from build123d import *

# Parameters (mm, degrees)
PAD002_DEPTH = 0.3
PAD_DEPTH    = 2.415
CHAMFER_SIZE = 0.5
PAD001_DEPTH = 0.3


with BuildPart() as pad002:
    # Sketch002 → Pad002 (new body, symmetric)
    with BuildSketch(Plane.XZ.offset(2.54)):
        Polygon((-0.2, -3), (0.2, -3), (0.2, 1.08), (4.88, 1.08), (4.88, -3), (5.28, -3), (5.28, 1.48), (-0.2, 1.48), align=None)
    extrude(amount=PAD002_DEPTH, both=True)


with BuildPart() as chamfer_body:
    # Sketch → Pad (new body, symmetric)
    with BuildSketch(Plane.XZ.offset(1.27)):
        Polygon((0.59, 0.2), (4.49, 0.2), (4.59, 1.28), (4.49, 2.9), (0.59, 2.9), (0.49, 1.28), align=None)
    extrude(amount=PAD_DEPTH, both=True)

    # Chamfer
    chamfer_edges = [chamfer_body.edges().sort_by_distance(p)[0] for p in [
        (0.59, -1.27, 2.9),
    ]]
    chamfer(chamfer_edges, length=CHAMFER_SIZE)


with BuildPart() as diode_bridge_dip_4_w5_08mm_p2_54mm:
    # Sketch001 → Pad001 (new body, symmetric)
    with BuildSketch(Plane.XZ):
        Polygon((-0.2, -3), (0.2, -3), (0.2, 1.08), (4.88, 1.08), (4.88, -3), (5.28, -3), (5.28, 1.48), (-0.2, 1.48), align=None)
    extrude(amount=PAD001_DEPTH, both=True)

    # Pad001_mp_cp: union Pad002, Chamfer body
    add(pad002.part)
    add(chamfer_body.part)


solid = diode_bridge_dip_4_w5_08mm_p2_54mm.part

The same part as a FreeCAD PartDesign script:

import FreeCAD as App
import Part
import Sketcher
from FreeCAD import Vector
Q = App.Units.Quantity


def edges_at(feature, points):
    """Names of the edges that pass closest to the given points."""
    edges = feature.Shape.Edges
    near = lambda p: min(range(len(edges)), key=lambda i: edges[i].distToShape(Part.Vertex(*p))[0])
    return sorted({f"Edge{near(p) + 1}" for p in points})

doc = App.newDocument("Part")
params = doc.addObject("Spreadsheet::Sheet", "Params")
for row, (alias, value) in enumerate([
    ("sketch1_width", "0.4 mm"),
    ("sketch1_width2", "4.68 mm"),
    ("sketch1_height", "4.08 mm"),
    ("sketch1_height2", "4.48 mm"),
    ("pad1_length", "0.6 mm"),
    ("sketch2_width", "3.9 mm"),
    ("pad2_length", "4.83 mm"),
    ("chamfer_size", "0.5 mm"),
    ("sketch3_width", "0.4 mm"),
    ("sketch3_width2", "4.68 mm"),
    ("sketch3_height", "4.08 mm"),
    ("sketch3_height2", "4.48 mm"),
    ("pad3_length", "0.6 mm"),
], start=1):
    params.set(f"A{row}", alias)
    params.set(f"B{row}", "=" + value)
    params.setAlias(f"B{row}", alias)

body = doc.addObject("PartDesign::Body", "Body")

# Sketch on XZ plane
sketch1 = body.newObject("Sketcher::SketchObject", "Sketch")
sketch1.AttachmentSupport = (doc.getObject("XZ_Plane"), [""])
sketch1.MapMode = "FlatFace"
sketch1.AttachmentOffset = App.Placement(Vector(0, 0, 2.54), App.Rotation())
sketch1.addGeometry([
    Part.LineSegment(Vector(-0.2, -3, 0), Vector(0.2, -3, 0)),  # 0
    Part.LineSegment(Vector(0.2, -3, 0), Vector(0.2, 1.08, 0)),  # 1
    Part.LineSegment(Vector(0.2, 1.08, 0), Vector(4.88, 1.08, 0)),  # 2
    Part.LineSegment(Vector(4.88, 1.08, 0), Vector(4.88, -3, 0)),  # 3
    Part.LineSegment(Vector(4.88, -3, 0), Vector(5.28, -3, 0)),  # 4
    Part.LineSegment(Vector(5.28, -3, 0), Vector(5.28, 1.48, 0)),  # 5
    Part.LineSegment(Vector(5.28, 1.48, 0), Vector(-0.2, 1.48, 0)),  # 6
    Part.LineSegment(Vector(-0.2, 1.48, 0), Vector(-0.2, -3, 0)),  # 7
], False)
sketch1.addConstraint([
    Sketcher.Constraint("Coincident", 0, 2, 1, 1),
    Sketcher.Constraint("Coincident", 1, 2, 2, 1),
    Sketcher.Constraint("Coincident", 2, 2, 3, 1),
    Sketcher.Constraint("Coincident", 3, 2, 4, 1),
    Sketcher.Constraint("Coincident", 4, 2, 5, 1),
    Sketcher.Constraint("Coincident", 5, 2, 6, 1),
    Sketcher.Constraint("Coincident", 6, 2, 7, 1),
    Sketcher.Constraint("Coincident", 7, 2, 0, 1),
    Sketcher.Constraint("Horizontal", 0),
    Sketcher.Constraint("Vertical", 1),
    Sketcher.Constraint("Horizontal", 2),
    Sketcher.Constraint("Vertical", 3),
    Sketcher.Constraint("Horizontal", 4),
    Sketcher.Constraint("Vertical", 5),
    Sketcher.Constraint("Horizontal", 6),
    Sketcher.Constraint("Vertical", 7),
    Sketcher.Constraint("Horizontal", 0, 2, 3, 2),
    Sketcher.Constraint("Equal", 0, 4),
    Sketcher.Constraint("DistanceX", 0, 1, 0, 2, Q("0.4 mm")),
    Sketcher.Constraint("DistanceY", 0, 2, -1, 1, Q("3 mm")),
    Sketcher.Constraint("DistanceX", 2, 1, 2, 2, Q("4.68 mm")),
    Sketcher.Constraint("DistanceY", 1, 1, 1, 2, Q("4.08 mm")),
    Sketcher.Constraint("DistanceY", 5, 1, 5, 2, Q("4.48 mm")),
    Sketcher.Constraint("DistanceX", -1, 1, 0, 2, Q("0.2 mm")),
])
sketch1.setExpression("Constraints[18]", "Params.sketch1_width")
sketch1.setExpression("Constraints[20]", "Params.sketch1_width2")
sketch1.setExpression("Constraints[21]", "Params.sketch1_height")
sketch1.setExpression("Constraints[22]", "Params.sketch1_height2")
pad1 = body.newObject("PartDesign::Pad", "Pad")
pad1.Profile = sketch1
pad1.setExpression("Length", "Params.pad1_length")
pad1.Midplane = True
body2 = doc.addObject("PartDesign::Body", "Body001")

# Sketch on XZ plane
sketch2 = body2.newObject("Sketcher::SketchObject", "Sketch001")
sketch2.AttachmentSupport = (doc.getObject("XZ_Plane001"), [""])
sketch2.MapMode = "FlatFace"
sketch2.AttachmentOffset = App.Placement(Vector(0, 0, 1.27), App.Rotation())
sketch2.addGeometry([
    Part.LineSegment(Vector(0.6, 0.2, 0), Vector(4.5, 0.2, 0)),  # 0
    Part.LineSegment(Vector(4.5, 0.2, 0), Vector(4.6, 1.3, 0)),  # 1
    Part.LineSegment(Vector(4.6, 1.3, 0), Vector(4.5, 2.9, 0)),  # 2
    Part.LineSegment(Vector(4.5, 2.9, 0), Vector(0.6, 2.9, 0)),  # 3
    Part.LineSegment(Vector(0.6, 2.9, 0), Vector(0.5, 1.3, 0)),  # 4
    Part.LineSegment(Vector(0.5, 1.3, 0), Vector(0.6, 0.2, 0)),  # 5
], False)
sketch2.addConstraint([
    Sketcher.Constraint("Coincident", 0, 2, 1, 1),
    Sketcher.Constraint("Coincident", 1, 2, 2, 1),
    Sketcher.Constraint("Coincident", 2, 2, 3, 1),
    Sketcher.Constraint("Coincident", 3, 2, 4, 1),
    Sketcher.Constraint("Coincident", 4, 2, 5, 1),
    Sketcher.Constraint("Coincident", 5, 2, 0, 1),
    Sketcher.Constraint("Horizontal", 0),
    Sketcher.Constraint("Horizontal", 3),
    Sketcher.Constraint("Horizontal", 1, 2, 4, 2),
    Sketcher.Constraint("Vertical", 0, 2, 2, 2),
    Sketcher.Constraint("Vertical", 3, 2, 5, 2),
    Sketcher.Constraint("Equal", 2, 4),
    Sketcher.Constraint("DistanceX", 0, 1, 0, 2, Q("3.9 mm")),
    Sketcher.Constraint("DistanceX", 3, 2, 1, 2, Q("4 mm")),
    Sketcher.Constraint("DistanceY", -1, 1, 0, 2, Q("0.2 mm")),
    Sketcher.Constraint("DistanceY", -1, 1, 2, 2, Q("2.9 mm")),
    Sketcher.Constraint("DistanceX", -1, 1, 0, 2, Q("4.49 mm")),
    Sketcher.Constraint("DistanceY", -1, 1, 1, 2, Q("1.28 mm")),
])
sketch2.setExpression("Constraints[12]", "Params.sketch2_width")
pad2 = body2.newObject("PartDesign::Pad", "Pad001")
pad2.Profile = sketch2
pad2.setExpression("Length", "Params.pad2_length")
pad2.Midplane = True
doc.recompute()

chamfer = body2.newObject("PartDesign::Chamfer", "Chamfer")
chamfer.Base = (pad2, edges_at(pad2, [(0.59, -1.27, 2.9)]))
chamfer.setExpression("Size", "Params.chamfer_size")
body3 = doc.addObject("PartDesign::Body", "Body002")
body3.AllowCompound = True

# Sketch on XZ plane
sketch3 = body3.newObject("Sketcher::SketchObject", "Sketch002")
sketch3.AttachmentSupport = (doc.getObject("XZ_Plane002"), [""])
sketch3.MapMode = "FlatFace"
sketch3.addGeometry([
    Part.LineSegment(Vector(-0.2, -3, 0), Vector(0.2, -3, 0)),  # 0
    Part.LineSegment(Vector(0.2, -3, 0), Vector(0.2, 1.08, 0)),  # 1
    Part.LineSegment(Vector(0.2, 1.08, 0), Vector(4.88, 1.08, 0)),  # 2
    Part.LineSegment(Vector(4.88, 1.08, 0), Vector(4.88, -3, 0)),  # 3
    Part.LineSegment(Vector(4.88, -3, 0), Vector(5.28, -3, 0)),  # 4
    Part.LineSegment(Vector(5.28, -3, 0), Vector(5.28, 1.48, 0)),  # 5
    Part.LineSegment(Vector(5.28, 1.48, 0), Vector(-0.2, 1.48, 0)),  # 6
    Part.LineSegment(Vector(-0.2, 1.48, 0), Vector(-0.2, -3, 0)),  # 7
], False)
sketch3.addConstraint([
    Sketcher.Constraint("Coincident", 0, 2, 1, 1),
    Sketcher.Constraint("Coincident", 1, 2, 2, 1),
    Sketcher.Constraint("Coincident", 2, 2, 3, 1),
    Sketcher.Constraint("Coincident", 3, 2, 4, 1),
    Sketcher.Constraint("Coincident", 4, 2, 5, 1),
    Sketcher.Constraint("Coincident", 5, 2, 6, 1),
    Sketcher.Constraint("Coincident", 6, 2, 7, 1),
    Sketcher.Constraint("Coincident", 7, 2, 0, 1),
    Sketcher.Constraint("Horizontal", 0),
    Sketcher.Constraint("Vertical", 1),
    Sketcher.Constraint("Horizontal", 2),
    Sketcher.Constraint("Vertical", 3),
    Sketcher.Constraint("Horizontal", 4),
    Sketcher.Constraint("Vertical", 5),
    Sketcher.Constraint("Horizontal", 6),
    Sketcher.Constraint("Vertical", 7),
    Sketcher.Constraint("Horizontal", 0, 2, 3, 2),
    Sketcher.Constraint("Equal", 0, 4),
    Sketcher.Constraint("DistanceX", 0, 1, 0, 2, Q("0.4 mm")),
    Sketcher.Constraint("DistanceY", 0, 2, -1, 1, Q("3 mm")),
    Sketcher.Constraint("DistanceX", 2, 1, 2, 2, Q("4.68 mm")),
    Sketcher.Constraint("DistanceY", 1, 1, 1, 2, Q("4.08 mm")),
    Sketcher.Constraint("DistanceY", 5, 1, 5, 2, Q("4.48 mm")),
    Sketcher.Constraint("DistanceX", -1, 1, 0, 2, Q("0.2 mm")),
])
sketch3.setExpression("Constraints[18]", "Params.sketch3_width")
sketch3.setExpression("Constraints[20]", "Params.sketch3_width2")
sketch3.setExpression("Constraints[21]", "Params.sketch3_height")
sketch3.setExpression("Constraints[22]", "Params.sketch3_height2")
pad3 = body3.newObject("PartDesign::Pad", "Pad002")
pad3.Profile = sketch3
pad3.setExpression("Length", "Params.pad3_length")
pad3.Midplane = True
doc.recompute()

boolean = body3.newObject("PartDesign::Boolean", "Boolean")
boolean.Type = "Fuse"
boolean.addObjects([body])
doc.recompute()

boolean2 = body3.newObject("PartDesign::Boolean", "Boolean001")
boolean2.Type = "Fuse"
boolean2.addObjects([body2])

doc.recompute()
